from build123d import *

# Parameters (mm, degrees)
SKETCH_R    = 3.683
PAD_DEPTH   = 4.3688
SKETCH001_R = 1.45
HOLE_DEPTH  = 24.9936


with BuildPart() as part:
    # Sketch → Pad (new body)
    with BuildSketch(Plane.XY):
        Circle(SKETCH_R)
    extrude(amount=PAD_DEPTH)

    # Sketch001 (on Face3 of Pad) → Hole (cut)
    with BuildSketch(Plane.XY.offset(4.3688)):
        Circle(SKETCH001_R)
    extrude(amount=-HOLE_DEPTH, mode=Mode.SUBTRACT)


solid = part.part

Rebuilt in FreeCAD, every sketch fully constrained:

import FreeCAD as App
import Part
import Sketcher
Q = App.Units.Quantity

doc = App.newDocument("Part")
body = doc.addObject("PartDesign::Body", "Body")

sketch1 = body.newObject("Sketcher::SketchObject", "Sketch")
sketch1.AttachmentSupport = (doc.getObject("XY_Plane"), [""])
sketch1.MapMode = "FlatFace"
sketch1.addGeometry(Part.Circle(App.Vector(0, 0, 0), App.Vector(0, 0, 1), 3.7), False)
sketch1.addConstraint(Sketcher.Constraint("Coincident", 0, 3, -1, 1))
sketch1.addConstraint(Sketcher.Constraint("Diameter", 0, Q("0.29 in")))
pad1 = body.newObject("PartDesign::Pad", "Pad")
pad1.Profile = sketch1
pad1.Length = Q("0.172 in")

sketch2 = body.newObject("Sketcher::SketchObject", "Sketch001")
sketch2.AttachmentSupport = (doc.getObject("XY_Plane"), [""])
sketch2.MapMode = "FlatFace"
sketch2.AttachmentOffset = App.Placement(App.Vector(0, 0, 0.172 * 25.4), App.Rotation())
sketch2.addGeometry(Part.Circle(App.Vector(0, 0, 0), App.Vector(0, 0, 1), 1.4), False)
sketch2.addConstraint(Sketcher.Constraint("Coincident", 0, 3, -1, 1))
sketch2.addConstraint(Sketcher.Constraint("Diameter", 0, 2.9))
pocket1 = body.newObject("PartDesign::Pocket", "Pocket")
pocket1.Profile = sketch2
pocket1.Length = Q("0.984 in")

doc.recompute()
